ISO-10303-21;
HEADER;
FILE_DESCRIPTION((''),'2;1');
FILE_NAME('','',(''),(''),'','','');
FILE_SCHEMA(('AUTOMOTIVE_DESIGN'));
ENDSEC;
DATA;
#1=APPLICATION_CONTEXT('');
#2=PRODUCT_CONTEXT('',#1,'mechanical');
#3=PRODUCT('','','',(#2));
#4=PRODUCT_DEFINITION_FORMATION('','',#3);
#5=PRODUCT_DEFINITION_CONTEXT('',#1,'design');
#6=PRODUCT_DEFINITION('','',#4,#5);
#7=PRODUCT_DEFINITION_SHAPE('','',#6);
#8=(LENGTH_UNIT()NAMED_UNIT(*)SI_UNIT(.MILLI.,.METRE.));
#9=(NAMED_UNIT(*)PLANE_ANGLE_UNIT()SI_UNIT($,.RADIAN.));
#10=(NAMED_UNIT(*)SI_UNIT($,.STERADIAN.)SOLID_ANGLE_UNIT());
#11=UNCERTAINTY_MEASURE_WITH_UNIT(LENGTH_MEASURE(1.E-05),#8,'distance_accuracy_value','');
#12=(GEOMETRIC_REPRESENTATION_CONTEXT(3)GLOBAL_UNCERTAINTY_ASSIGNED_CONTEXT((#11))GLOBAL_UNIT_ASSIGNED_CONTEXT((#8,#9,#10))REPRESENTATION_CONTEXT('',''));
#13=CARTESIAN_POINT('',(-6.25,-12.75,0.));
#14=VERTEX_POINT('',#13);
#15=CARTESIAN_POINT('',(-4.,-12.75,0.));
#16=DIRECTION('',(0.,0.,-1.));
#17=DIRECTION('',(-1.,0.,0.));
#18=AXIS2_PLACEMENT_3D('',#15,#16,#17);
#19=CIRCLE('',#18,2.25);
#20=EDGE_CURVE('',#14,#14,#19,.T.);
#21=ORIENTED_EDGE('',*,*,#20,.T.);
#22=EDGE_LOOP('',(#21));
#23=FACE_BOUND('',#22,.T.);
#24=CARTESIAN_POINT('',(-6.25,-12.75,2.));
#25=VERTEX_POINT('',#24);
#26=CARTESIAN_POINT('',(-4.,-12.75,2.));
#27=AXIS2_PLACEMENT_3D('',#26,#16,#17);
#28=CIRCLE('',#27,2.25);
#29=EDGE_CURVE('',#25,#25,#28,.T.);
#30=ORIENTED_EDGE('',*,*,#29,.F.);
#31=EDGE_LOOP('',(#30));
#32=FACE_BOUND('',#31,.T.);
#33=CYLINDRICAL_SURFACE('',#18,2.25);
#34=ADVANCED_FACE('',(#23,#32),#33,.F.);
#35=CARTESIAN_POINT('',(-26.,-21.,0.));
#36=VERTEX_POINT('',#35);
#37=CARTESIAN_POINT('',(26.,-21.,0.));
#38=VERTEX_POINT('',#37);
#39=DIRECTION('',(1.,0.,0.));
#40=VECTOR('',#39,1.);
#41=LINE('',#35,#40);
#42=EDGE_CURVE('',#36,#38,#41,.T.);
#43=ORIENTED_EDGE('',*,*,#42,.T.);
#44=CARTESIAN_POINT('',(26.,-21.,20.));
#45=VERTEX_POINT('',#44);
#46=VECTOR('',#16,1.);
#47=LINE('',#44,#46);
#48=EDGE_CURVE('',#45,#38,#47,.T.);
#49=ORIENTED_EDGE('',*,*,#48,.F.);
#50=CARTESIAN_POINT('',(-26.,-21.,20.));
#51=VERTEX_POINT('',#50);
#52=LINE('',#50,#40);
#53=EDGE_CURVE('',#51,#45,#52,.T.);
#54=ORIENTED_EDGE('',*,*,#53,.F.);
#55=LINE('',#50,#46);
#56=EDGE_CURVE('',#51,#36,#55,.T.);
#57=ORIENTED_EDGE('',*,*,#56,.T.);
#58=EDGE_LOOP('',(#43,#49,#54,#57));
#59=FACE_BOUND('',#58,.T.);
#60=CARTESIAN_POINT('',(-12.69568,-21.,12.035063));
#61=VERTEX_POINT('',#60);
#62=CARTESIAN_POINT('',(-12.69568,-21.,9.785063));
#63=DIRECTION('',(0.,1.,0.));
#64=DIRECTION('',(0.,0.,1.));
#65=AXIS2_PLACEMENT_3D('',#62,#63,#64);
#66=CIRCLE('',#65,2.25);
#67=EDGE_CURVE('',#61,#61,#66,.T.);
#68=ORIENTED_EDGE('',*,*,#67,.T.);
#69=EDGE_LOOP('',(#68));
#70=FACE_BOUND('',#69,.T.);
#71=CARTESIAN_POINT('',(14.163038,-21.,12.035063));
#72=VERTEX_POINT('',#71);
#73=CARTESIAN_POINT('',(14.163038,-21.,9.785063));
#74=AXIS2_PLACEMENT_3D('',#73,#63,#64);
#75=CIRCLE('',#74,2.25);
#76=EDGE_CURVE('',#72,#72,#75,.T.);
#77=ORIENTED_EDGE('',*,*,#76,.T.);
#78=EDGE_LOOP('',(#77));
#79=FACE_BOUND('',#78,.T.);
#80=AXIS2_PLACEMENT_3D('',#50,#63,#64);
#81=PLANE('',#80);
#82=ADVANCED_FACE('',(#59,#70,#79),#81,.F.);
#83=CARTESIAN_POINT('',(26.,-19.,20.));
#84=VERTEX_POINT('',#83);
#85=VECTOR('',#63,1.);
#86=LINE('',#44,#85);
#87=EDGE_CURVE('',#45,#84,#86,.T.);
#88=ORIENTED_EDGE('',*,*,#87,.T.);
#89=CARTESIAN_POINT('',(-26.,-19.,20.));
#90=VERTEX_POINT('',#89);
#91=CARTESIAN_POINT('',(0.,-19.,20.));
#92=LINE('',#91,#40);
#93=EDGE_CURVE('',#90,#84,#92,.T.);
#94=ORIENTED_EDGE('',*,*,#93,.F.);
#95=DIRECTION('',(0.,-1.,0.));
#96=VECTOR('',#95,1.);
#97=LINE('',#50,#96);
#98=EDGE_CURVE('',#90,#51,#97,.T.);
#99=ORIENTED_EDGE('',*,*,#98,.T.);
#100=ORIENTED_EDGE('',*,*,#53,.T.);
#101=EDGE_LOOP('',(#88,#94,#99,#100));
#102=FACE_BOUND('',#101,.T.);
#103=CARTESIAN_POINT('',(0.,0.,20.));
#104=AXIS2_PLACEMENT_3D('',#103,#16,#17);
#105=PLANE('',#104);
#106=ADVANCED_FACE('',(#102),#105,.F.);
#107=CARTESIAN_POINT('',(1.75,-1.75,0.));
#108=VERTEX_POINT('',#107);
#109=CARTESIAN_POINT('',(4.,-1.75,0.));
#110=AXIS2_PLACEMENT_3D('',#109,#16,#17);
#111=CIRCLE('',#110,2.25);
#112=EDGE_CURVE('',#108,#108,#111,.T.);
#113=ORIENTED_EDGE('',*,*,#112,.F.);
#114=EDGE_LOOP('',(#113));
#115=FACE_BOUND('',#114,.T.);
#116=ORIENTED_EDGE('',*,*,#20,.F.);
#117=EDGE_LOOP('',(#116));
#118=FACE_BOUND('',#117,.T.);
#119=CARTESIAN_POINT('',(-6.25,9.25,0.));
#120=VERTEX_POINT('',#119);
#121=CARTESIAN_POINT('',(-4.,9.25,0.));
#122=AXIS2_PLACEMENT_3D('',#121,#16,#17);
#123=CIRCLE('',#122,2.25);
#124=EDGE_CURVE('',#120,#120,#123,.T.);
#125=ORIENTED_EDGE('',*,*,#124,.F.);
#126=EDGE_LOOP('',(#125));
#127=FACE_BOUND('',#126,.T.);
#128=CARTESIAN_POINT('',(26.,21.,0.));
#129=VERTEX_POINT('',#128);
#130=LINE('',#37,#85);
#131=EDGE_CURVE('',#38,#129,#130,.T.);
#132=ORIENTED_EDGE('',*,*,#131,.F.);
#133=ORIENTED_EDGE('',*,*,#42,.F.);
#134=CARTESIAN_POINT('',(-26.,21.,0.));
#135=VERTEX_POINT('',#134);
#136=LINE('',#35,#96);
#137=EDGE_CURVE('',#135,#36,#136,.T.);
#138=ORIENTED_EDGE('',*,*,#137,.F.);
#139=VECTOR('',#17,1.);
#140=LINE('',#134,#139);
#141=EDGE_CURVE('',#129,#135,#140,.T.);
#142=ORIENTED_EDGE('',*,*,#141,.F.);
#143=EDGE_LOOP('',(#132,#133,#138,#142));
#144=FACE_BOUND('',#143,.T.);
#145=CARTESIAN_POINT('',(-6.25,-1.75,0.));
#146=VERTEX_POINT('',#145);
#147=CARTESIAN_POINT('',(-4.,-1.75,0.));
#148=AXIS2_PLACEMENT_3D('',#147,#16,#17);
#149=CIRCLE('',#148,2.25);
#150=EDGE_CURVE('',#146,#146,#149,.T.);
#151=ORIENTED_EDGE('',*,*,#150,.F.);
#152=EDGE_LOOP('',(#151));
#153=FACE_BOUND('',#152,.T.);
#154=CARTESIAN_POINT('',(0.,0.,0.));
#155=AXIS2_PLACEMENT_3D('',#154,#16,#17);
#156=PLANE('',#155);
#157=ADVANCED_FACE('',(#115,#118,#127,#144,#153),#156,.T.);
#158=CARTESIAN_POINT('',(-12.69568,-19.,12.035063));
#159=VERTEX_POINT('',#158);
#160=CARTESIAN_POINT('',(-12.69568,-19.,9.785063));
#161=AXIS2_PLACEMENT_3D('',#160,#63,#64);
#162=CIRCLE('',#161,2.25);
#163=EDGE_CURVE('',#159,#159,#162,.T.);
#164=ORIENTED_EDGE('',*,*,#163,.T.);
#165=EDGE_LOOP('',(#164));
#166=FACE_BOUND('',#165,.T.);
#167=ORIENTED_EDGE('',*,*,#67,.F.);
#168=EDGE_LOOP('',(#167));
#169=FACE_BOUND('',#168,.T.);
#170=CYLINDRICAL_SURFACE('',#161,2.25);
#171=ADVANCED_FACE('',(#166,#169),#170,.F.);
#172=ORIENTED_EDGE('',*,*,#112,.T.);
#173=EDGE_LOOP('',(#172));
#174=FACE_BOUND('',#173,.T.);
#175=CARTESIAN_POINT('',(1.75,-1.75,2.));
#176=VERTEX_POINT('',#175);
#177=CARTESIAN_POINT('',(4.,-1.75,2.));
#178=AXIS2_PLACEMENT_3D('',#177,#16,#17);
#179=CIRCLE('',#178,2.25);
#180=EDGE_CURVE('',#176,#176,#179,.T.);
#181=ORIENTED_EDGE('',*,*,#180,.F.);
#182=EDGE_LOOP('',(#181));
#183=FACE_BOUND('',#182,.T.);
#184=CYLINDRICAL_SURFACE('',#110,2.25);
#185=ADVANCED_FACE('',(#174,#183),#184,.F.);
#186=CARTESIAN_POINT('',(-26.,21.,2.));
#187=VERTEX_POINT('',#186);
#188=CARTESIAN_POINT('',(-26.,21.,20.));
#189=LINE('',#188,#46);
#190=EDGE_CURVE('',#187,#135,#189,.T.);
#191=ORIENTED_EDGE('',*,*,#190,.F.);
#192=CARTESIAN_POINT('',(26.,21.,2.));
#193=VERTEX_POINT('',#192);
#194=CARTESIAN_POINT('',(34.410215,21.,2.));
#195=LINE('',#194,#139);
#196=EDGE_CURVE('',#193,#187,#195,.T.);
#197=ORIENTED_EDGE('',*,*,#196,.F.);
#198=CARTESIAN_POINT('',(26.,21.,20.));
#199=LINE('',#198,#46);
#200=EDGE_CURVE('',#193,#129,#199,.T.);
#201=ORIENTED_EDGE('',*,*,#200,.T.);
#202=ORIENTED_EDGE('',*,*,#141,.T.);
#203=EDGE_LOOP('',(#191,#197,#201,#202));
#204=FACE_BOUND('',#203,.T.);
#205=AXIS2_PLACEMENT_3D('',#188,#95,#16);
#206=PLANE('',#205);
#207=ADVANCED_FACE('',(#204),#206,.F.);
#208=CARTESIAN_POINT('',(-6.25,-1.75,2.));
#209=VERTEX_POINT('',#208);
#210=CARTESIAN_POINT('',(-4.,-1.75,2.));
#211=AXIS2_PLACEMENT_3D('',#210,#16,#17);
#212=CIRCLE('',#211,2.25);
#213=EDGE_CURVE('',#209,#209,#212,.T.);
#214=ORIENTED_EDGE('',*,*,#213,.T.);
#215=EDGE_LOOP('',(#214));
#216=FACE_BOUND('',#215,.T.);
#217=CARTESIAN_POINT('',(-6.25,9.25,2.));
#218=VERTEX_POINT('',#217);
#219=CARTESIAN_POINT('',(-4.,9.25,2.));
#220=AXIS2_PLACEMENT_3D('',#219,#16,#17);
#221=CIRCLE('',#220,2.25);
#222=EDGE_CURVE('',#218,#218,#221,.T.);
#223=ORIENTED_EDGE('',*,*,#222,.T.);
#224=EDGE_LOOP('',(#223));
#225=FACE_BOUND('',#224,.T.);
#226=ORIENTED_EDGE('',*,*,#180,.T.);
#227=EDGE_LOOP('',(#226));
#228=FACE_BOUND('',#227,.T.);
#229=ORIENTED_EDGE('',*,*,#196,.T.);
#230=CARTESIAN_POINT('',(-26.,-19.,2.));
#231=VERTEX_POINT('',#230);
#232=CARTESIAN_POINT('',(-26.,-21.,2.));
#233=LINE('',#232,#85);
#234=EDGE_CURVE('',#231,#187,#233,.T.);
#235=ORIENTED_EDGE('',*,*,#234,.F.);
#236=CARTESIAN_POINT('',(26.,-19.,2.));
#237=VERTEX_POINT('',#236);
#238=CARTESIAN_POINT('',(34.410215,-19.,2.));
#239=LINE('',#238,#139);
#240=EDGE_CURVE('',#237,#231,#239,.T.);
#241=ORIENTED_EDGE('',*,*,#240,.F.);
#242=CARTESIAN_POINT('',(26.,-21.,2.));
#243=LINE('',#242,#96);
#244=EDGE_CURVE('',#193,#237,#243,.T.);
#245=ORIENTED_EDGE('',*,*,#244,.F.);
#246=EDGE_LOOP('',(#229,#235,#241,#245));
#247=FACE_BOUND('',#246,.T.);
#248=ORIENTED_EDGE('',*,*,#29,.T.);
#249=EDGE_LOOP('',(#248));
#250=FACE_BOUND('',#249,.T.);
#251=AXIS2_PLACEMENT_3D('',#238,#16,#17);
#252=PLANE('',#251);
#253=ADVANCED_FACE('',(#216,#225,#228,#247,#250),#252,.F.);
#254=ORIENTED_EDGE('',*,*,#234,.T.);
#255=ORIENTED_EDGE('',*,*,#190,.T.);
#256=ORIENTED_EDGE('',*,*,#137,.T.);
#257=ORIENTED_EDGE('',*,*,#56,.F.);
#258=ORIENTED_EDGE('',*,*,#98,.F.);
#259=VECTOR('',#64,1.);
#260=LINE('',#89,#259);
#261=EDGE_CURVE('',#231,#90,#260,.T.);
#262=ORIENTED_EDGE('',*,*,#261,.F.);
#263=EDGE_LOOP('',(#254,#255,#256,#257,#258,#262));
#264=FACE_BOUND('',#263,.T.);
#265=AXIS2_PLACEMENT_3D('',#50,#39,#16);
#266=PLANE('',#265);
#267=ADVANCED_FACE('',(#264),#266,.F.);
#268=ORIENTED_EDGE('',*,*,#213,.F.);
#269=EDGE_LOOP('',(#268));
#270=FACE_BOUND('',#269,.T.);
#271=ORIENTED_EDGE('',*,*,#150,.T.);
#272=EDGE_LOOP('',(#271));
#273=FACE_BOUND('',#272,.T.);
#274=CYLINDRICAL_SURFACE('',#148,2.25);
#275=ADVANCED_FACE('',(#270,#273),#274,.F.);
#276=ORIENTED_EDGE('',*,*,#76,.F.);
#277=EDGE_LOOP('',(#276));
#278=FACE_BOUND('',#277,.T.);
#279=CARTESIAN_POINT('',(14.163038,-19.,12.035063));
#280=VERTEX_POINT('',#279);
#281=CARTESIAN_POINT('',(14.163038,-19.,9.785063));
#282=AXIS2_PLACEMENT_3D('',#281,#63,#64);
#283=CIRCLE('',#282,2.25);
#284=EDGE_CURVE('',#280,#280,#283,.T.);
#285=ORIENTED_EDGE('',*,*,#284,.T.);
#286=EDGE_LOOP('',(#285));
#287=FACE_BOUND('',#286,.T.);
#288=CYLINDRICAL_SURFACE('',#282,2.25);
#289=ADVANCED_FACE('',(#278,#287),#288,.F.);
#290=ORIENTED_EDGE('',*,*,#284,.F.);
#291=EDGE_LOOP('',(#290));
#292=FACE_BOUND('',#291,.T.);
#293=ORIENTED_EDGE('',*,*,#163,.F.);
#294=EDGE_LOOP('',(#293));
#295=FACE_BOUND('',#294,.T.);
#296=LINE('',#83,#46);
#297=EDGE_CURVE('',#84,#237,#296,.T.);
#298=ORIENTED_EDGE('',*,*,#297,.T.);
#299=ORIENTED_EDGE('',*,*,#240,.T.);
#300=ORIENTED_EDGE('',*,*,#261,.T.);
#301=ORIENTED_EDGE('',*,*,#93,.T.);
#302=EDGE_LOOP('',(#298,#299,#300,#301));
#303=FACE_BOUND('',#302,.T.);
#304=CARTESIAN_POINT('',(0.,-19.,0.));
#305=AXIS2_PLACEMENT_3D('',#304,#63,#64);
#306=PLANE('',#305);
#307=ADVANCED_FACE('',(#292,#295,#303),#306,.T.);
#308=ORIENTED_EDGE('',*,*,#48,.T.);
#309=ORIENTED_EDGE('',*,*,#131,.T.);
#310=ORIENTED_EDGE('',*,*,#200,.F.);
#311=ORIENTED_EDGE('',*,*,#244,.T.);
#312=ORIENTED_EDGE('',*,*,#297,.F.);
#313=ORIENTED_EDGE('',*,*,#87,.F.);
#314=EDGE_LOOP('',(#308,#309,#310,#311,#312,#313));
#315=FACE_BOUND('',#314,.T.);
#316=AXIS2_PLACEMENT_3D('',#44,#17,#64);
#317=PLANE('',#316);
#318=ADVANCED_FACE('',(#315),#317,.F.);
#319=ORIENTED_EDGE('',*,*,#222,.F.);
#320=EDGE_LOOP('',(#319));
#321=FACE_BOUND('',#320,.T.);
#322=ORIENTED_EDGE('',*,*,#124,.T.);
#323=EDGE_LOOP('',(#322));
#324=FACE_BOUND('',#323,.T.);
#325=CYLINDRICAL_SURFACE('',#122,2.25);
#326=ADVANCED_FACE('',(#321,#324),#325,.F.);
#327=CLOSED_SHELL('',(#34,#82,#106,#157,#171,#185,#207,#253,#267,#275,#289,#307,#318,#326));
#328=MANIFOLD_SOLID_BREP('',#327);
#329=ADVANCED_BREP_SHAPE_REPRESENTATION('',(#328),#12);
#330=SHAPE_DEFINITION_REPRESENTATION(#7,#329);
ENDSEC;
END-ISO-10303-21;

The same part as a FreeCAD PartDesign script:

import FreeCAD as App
import Part
import Sketcher
from FreeCAD import Vector

doc = App.newDocument("Part")
body = doc.addObject("PartDesign::Body", "Body")

sketch1 = body.newObject("Sketcher::SketchObject", "Sketch")
sketch1.AttachmentSupport = (doc.getObject("XY_Plane"), [""])
sketch1.MapMode = "FlatFace"
sketch1.addGeometry([
    Part.LineSegment(Vector(-26, 21, 0), Vector(-26, -21, 0)),
    Part.LineSegment(Vector(-26, -21, 0), Vector(26, -21, 0)),
    Part.LineSegment(Vector(26, -21, 0), Vector(26, 21, 0)),
    Part.LineSegment(Vector(26, 21, 0), Vector(-26, 21, 0)),
], False)
sketch1.addConstraint([
    Sketcher.Constraint("Coincident", 0, 2, 1, 1),
    Sketcher.Constraint("Coincident", 1, 2, 2, 1),
    Sketcher.Constraint("Coincident", 2, 2, 3, 1),
    Sketcher.Constraint("Coincident", 3, 2, 0, 1),
    Sketcher.Constraint("Vertical", 0),
    Sketcher.Constraint("Horizontal", 1),
    Sketcher.Constraint("Vertical", 2),
    Sketcher.Constraint("Horizontal", 3),
    Sketcher.Constraint("Symmetric", 0, 2, 2, 2, -1, 1),
    Sketcher.Constraint("DistanceX", 1, 1, 1, 2, 52.0),
    Sketcher.Constraint("DistanceY", 0, 2, 0, 1, 42.0),
])
pad1 = body.newObject("PartDesign::Pad", "Pad")
pad1.Profile = sketch1
pad1.Length = 20

sketch2 = body.newObject("Sketcher::SketchObject", "Sketch001")
sketch2.AttachmentSupport = (doc.getObject("XZ_Plane"), [""])
sketch2.MapMode = "FlatFace"
sketch2.AttachmentOffset = App.Placement(Vector(0, 0, -21), App.Rotation())
sketch2.addGeometry([
    Part.LineSegment(Vector(-32, 2, 0), Vector(-32, 43, 0)),
    Part.LineSegment(Vector(-32, 43, 0), Vector(34, 43, 0)),
    Part.LineSegment(Vector(34, 43, 0), Vector(34, 2, 0)),
    Part.LineSegment(Vector(34, 2, 0), Vector(-32, 2, 0)),
], False)
sketch2.addConstraint([
    Sketcher.Constraint("Coincident", 0, 2, 1, 1),
    Sketcher.Constraint("Coincident", 1, 2, 2, 1),
    Sketcher.Constraint("Coincident", 2, 2, 3, 1),
    Sketcher.Constraint("Coincident", 3, 2, 0, 1),
    Sketcher.Constraint("Vertical", 0),
    Sketcher.Constraint("Horizontal", 1),
    Sketcher.Constraint("Vertical", 2),
    Sketcher.Constraint("Horizontal", 3),
    Sketcher.Constraint("DistanceY", -1, 1, 2, 2, 2.0),
    Sketcher.Constraint("DistanceY", 0, 1, 0, 2, 40.94618),
    Sketcher.Constraint("DistanceX", 1, 1, 1, 2, 66.008628),
    Sketcher.Constraint("DistanceX", 0, 2, -1, 1, 31.598412),
])
pocket1 = body.newObject("PartDesign::Pocket", "Pocket")
pocket1.Profile = sketch2
pocket1.Length = 40
pocket1.Reversed = True

sketch3 = body.newObject("Sketcher::SketchObject", "Sketch002")
sketch3.AttachmentSupport = (doc.getObject("XY_Plane"), [""])
sketch3.MapMode = "FlatFace"
sketch3.addGeometry([
    Part.Circle(Vector(-4, -12.8, 0), Vector(0, 0, 1), 2.2),
    Part.Circle(Vector(-4, -1.8, 0), Vector(0, 0, 1), 2.2),
    Part.Circle(Vector(-4, 9.2, 0), Vector(0, 0, 1), 2.2),
    Part.Circle(Vector(4, -1.8, 0), Vector(0, 0, 1), 2.2),
], False)
sketch3.addConstraint([
    Sketcher.Constraint("Equal", 0, 1),
    Sketcher.Constraint("Equal", 1, 2),
    Sketcher.Constraint("Equal", 2, 3),
    Sketcher.Constraint("Symmetric", 1, 3, 3, 3, -2),
    Sketcher.Constraint("Vertical", 0, 3, 1, 3),
    Sketcher.Constraint("Vertical", 1, 3, 2, 3),
    Sketcher.Constraint("Diameter", 0, 4.5),
    Sketcher.Constraint("DistanceX", 0, 3, -1, 1, 4.0),
    Sketcher.Constraint("DistanceY", 0, 3, 1, 3, 11.0),
    Sketcher.Constraint("DistanceY", 1, 3, 2, 3, 11.0),
    Sketcher.Constraint("DistanceY", 0, 3, -1, 1, 12.75),
])
doc.recompute()
hole = body.newObject("PartDesign::Hole", "Hole")
hole.Profile = sketch3
hole.ThreadType = "None"
hole.Diameter = 4.5
hole.DepthType = "ThroughAll"
hole.Reversed = True

sketch4 = body.newObject("Sketcher::SketchObject", "Sketch003")
sketch4.AttachmentSupport = (doc.getObject("XZ_Plane"), [""])
sketch4.MapMode = "FlatFace"
sketch4.AttachmentOffset = App.Placement(Vector(0, 0, 19), App.Rotation())
sketch4.addGeometry([
    Part.Circle(Vector(-12.7, 9.8, 0), Vector(0, 0, 1), 2.2),
    Part.Circle(Vector(14.2, 9.8, 0), Vector(0, 0, 1), 2.2),
], False)
sketch4.addConstraint([
    Sketcher.Constraint("Equal", 0, 1),
    Sketcher.Constraint("Horizontal", 0, 3, 1, 3),
    Sketcher.Constraint("Diameter", 0, 4.5),
    Sketcher.Constraint("DistanceX", 0, 3, -1, 1, 12.69568),
    Sketcher.Constraint("DistanceY", -1, 1, 0, 3, 9.785063),
    Sketcher.Constraint("DistanceX", -1, 1, 1, 3, 14.163038),
])
doc.recompute()
hole2 = body.newObject("PartDesign::Hole", "Hole001")
hole2.Profile = sketch4
hole2.ThreadType = "None"
hole2.Diameter = 4.5
hole2.DepthType = "ThroughAll"
hole2.Reversed = True

doc.recompute()
